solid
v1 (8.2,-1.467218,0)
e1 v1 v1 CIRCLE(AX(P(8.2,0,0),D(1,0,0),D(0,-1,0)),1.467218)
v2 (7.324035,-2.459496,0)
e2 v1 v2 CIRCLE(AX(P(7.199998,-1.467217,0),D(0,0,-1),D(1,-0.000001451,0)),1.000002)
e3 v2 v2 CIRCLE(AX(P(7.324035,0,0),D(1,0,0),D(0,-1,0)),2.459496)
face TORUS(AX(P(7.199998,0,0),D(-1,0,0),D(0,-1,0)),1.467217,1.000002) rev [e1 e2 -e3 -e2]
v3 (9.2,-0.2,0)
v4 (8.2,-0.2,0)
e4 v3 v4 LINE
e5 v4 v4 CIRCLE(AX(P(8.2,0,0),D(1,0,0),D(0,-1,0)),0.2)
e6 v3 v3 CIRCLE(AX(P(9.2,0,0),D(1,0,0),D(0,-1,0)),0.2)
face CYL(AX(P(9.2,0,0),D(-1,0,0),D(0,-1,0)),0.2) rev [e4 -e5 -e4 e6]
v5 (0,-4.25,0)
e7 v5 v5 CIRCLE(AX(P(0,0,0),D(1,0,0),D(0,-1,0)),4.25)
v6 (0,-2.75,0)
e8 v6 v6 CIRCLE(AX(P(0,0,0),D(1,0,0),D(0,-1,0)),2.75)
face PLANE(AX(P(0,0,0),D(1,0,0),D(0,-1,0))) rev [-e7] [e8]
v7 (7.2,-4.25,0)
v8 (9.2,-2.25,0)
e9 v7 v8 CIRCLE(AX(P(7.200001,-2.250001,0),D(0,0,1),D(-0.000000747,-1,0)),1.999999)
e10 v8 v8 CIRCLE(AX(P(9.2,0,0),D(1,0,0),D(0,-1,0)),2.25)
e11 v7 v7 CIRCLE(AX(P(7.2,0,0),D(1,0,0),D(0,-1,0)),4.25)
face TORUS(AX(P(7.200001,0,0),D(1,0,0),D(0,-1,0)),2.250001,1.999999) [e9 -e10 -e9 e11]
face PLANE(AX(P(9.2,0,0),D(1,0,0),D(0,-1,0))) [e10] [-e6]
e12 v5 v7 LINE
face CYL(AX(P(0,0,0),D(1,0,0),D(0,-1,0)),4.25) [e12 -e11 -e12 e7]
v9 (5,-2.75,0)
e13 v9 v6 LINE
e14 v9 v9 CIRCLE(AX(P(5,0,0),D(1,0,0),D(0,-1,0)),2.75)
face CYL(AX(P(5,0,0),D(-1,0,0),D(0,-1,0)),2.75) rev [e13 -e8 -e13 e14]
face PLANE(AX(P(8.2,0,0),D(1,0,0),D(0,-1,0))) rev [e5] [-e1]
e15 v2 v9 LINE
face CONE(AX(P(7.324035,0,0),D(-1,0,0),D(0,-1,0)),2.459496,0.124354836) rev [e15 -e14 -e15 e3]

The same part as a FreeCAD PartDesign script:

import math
import FreeCAD as App
import Part
import Sketcher

doc = App.newDocument("Part")
params = doc.addObject("Spreadsheet::Sheet", "Params")
for row, (alias, value) in enumerate([
    ("sketch1_radius", "1.999999 mm"),
    ("sketch1_radius2", "1.000002 mm"),
    ("sketch1_width", "5 mm"),
    ("sketch1_width2", "7.2 mm"),
    ("sketch1_height", "1.5 mm"),
    ("revolution_angle", "360 deg"),
], start=1):
    params.set(f"A{row}", alias)
    params.set(f"B{row}", "=" + value)
    params.setAlias(f"B{row}", alias)

body = doc.addObject("PartDesign::Body", "Body")

sketch1 = body.newObject("Sketcher::SketchObject", "Sketch")
sketch1.AttachmentSupport = (doc.getObject("XY_Plane"), [""])
sketch1.MapMode = "FlatFace"
sketch1.addGeometry(Part.LineSegment(App.Vector(5, -2.75, 0), App.Vector(0, -2.75, 0)), False)
sketch1.addGeometry(Part.LineSegment(App.Vector(0, -2.75, 0), App.Vector(0, -4.25, 0)), False)
sketch1.addGeometry(Part.LineSegment(App.Vector(0, -4.25, 0), App.Vector(7.2, -4.25, 0)), False)
sketch1.addGeometry(Part.ArcOfCircle(Part.Circle(App.Vector(7.200001, -2.250001, 0), App.Vector(0, 0, 1), 1.999999), math.radians(-90.000043), math.radians(0.000043)), False)
sketch1.addGeometry(Part.LineSegment(App.Vector(9.2, -2.25, 0), App.Vector(9.2, -0.2, 0)), False)
sketch1.addGeometry(Part.LineSegment(App.Vector(9.2, -0.2, 0), App.Vector(8.2, -0.2, 0)), False)
sketch1.addGeometry(Part.LineSegment(App.Vector(8.2, -0.2, 0), App.Vector(8.2, -1.467218, 0)), False)
sketch1.addGeometry(Part.ArcOfCircle(Part.Circle(App.Vector(7.199998, -1.467217, 0), App.Vector(0, 0, 1), 1.000002), math.radians(-82.874876), math.radians(-0.000083)), False)
sketch1.addGeometry(Part.LineSegment(App.Vector(7.324035, -2.459496, 0), App.Vector(5, -2.75, 0)), False)
sketch1.addConstraint(Sketcher.Constraint("Coincident", 0, 2, 1, 1))
sketch1.addConstraint(Sketcher.Constraint("Coincident", 1, 2, 2, 1))
sketch1.addConstraint(Sketcher.Constraint("Tangent", 2, 2, 3, 1))
sketch1.addConstraint(Sketcher.Constraint("Tangent", 3, 2, 4, 1))
sketch1.addConstraint(Sketcher.Constraint("Coincident", 4, 2, 5, 1))
sketch1.addConstraint(Sketcher.Constraint("Coincident", 5, 2, 6, 1))
sketch1.addConstraint(Sketcher.Constraint("Tangent", 6, 2, 7, 2))
sketch1.addConstraint(Sketcher.Constraint("Coincident", 7, 1, 8, 1))
sketch1.addConstraint(Sketcher.Constraint("Coincident", 8, 2, 0, 1))
sketch1.addConstraint(Sketcher.Constraint("Horizontal", 0))
sketch1.addConstraint(Sketcher.Constraint("Vertical", 1))
sketch1.addConstraint(Sketcher.Constraint("Horizontal", 2))
sketch1.addConstraint(Sketcher.Constraint("Vertical", 4))
sketch1.addConstraint(Sketcher.Constraint("Horizontal", 5))
sketch1.addConstraint(Sketcher.Constraint("Vertical", 6))
sketch1.addConstraint(Sketcher.Constraint("PointOnObject", 0, 2, -2))
sketch1.addConstraint(Sketcher.Constraint("Vertical", 7, 3, 2, 2))
sketch1.addConstraint(Sketcher.Constraint("Radius", 3, 1.999999))
sketch1.addConstraint(Sketcher.Constraint("Radius", 7, 1.000002))
sketch1.addConstraint(Sketcher.Constraint("DistanceX", 0, 2, 0, 1, 5.0))
sketch1.addConstraint(Sketcher.Constraint("DistanceX", 2, 1, 2, 2, 7.2))
sketch1.addConstraint(Sketcher.Constraint("DistanceY", 1, 2, 1, 1, 1.5))
sketch1.addConstraint(Sketcher.Constraint("DistanceY", 4, 1, 4, 2, 2.05))
sketch1.addConstraint(Sketcher.Constraint("DistanceY", 4, 2, -1, 1, 0.2))
sketch1.addConstraint(Sketcher.Constraint("Distance", 8, 2.342121))
sketch1.addConstraint(Sketcher.Constraint("DistanceY", 6, 2, 6, 1, 1.267218))
sketch1.setExpression("Constraints[17]", "Params.sketch1_radius")
sketch1.setExpression("Constraints[18]", "Params.sketch1_radius2")
sketch1.setExpression("Constraints[19]", "Params.sketch1_width")
sketch1.setExpression("Constraints[20]", "Params.sketch1_width2")
sketch1.setExpression("Constraints[21]", "Params.sketch1_height")
revolution = body.newObject("PartDesign::Revolution", "Revolution")
revolution.Profile = sketch1
revolution.ReferenceAxis = (sketch1, ["H_Axis"])
revolution.setExpression("Angle", "Params.revolution_angle")

doc.recompute()
